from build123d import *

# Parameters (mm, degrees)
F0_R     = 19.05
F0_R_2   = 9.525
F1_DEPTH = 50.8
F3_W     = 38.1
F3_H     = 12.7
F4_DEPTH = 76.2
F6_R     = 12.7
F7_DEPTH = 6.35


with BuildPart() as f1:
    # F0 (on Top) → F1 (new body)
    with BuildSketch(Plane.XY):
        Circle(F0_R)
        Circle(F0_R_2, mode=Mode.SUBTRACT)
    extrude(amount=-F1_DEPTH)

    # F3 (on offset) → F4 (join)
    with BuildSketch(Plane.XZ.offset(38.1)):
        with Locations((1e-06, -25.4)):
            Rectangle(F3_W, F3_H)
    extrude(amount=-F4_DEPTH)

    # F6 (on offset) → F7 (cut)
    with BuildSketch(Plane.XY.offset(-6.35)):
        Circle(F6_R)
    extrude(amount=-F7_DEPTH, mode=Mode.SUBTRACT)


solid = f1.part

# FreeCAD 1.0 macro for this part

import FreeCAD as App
import Part
import Sketcher
from FreeCAD import Vector
Q = App.Units.Quantity

doc = App.newDocument("Part")
params = doc.addObject("Spreadsheet::Sheet", "Params")
for row, (alias, value) in enumerate([
    ("sketch1_diameter", "1.5 in"),
    ("sketch1_diameter2", "0.75 in"),
    ("pad1_length", "2 in"),
    ("sketch2_width", "1.5 in"),
    ("sketch2_height", "0.5 in"),
    ("pad2_length", "3 in"),
    ("sketch3_diameter", "1 in"),
    ("pocket1_length", "0.25 in"),
], start=1):
    params.set(f"A{row}", alias)
    params.set(f"B{row}", "=" + value)
    params.setAlias(f"B{row}", alias)

body = doc.addObject("PartDesign::Body", "Body")

sketch1 = body.newObject("Sketcher::SketchObject", "Sketch")
sketch1.AttachmentSupport = (doc.getObject("XY_Plane"), [""])
sketch1.MapMode = "FlatFace"
sketch1.addGeometry([
    Part.Circle(Vector(0, 0, 0), Vector(0, 0, 1), 19.05),
    Part.Circle(Vector(0, 0, 0), Vector(0, 0, 1), 9.525),
], False)
sketch1.addConstraint([
    Sketcher.Constraint("Coincident", 0, 3, -1, 1),
    Sketcher.Constraint("Coincident", 1, 3, -1, 1),
    Sketcher.Constraint("Diameter", 0, Q("1.5 in")),
    Sketcher.Constraint("Diameter", 1, Q("0.75 in")),
])
sketch1.setExpression("Constraints[2]", "Params.sketch1_diameter")
sketch1.setExpression("Constraints[3]", "Params.sketch1_diameter2")
pad1 = body.newObject("PartDesign::Pad", "Pad")
pad1.Profile = sketch1
pad1.setExpression("Length", "Params.pad1_length")
pad1.Reversed = True

sketch2 = body.newObject("Sketcher::SketchObject", "Sketch001")
sketch2.AttachmentSupport = (doc.getObject("XZ_Plane"), [""])
sketch2.MapMode = "FlatFace"
sketch2.AttachmentOffset = App.Placement(Vector(0, 0, 1.5 * 25.4), App.Rotation())
sketch2.addGeometry([
    Part.LineSegment(Vector(-19.049999, -19.05, 0), Vector(-19.049999, -31.75, 0)),
    Part.LineSegment(Vector(-19.049999, -31.75, 0), Vector(19.050001, -31.75, 0)),
    Part.LineSegment(Vector(19.050001, -31.75, 0), Vector(19.050001, -19.05, 0)),
    Part.LineSegment(Vector(19.050001, -19.05, 0), Vector(-19.049999, -19.05, 0)),
], False)
sketch2.addConstraint([
    Sketcher.Constraint("Coincident", 0, 2, 1, 1),
    Sketcher.Constraint("Coincident", 1, 2, 2, 1),
    Sketcher.Constraint("Coincident", 2, 2, 3, 1),
    Sketcher.Constraint("Coincident", 3, 2, 0, 1),
    Sketcher.Constraint("Vertical", 0),
    Sketcher.Constraint("Horizontal", 1),
    Sketcher.Constraint("Vertical", 2),
    Sketcher.Constraint("Horizontal", 3),
    Sketcher.Constraint("DistanceX", 1, 1, 1, 2, Q("1.5 in")),
    Sketcher.Constraint("DistanceY", 0, 2, 0, 1, Q("0.5 in")),
    Sketcher.Constraint("DistanceX", 0, 2, -1, 1, Q("0.75 in")),
    Sketcher.Constraint("DistanceY", 0, 2, -1, 1, Q("1.25 in")),
])
sketch2.setExpression("Constraints[8]", "Params.sketch2_width")
sketch2.setExpression("Constraints[9]", "Params.sketch2_height")
pad2 = body.newObject("PartDesign::Pad", "Pad001")
pad2.Profile = sketch2
pad2.setExpression("Length", "Params.pad2_length")
pad2.Reversed = True

sketch3 = body.newObject("Sketcher::SketchObject", "Sketch002")
sketch3.AttachmentSupport = (doc.getObject("XY_Plane"), [""])
sketch3.MapMode = "FlatFace"
sketch3.AttachmentOffset = App.Placement(Vector(0, 0, -0.25 * 25.4), App.Rotation())
sketch3.addGeometry(Part.Circle(Vector(0, 0, 0), Vector(0, 0, 1), 12.7), False)
sketch3.addConstraint([
    Sketcher.Constraint("Coincident", 0, 3, -1, 1),
    Sketcher.Constraint("Diameter", 0, Q("1 in")),
])
sketch3.setExpression("Constraints[1]", "Params.sketch3_diameter")
pocket1 = body.newObject("PartDesign::Pocket", "Pocket")
pocket1.Profile = sketch3
pocket1.setExpression("Length", "Params.pocket1_length")

doc.recompute()
